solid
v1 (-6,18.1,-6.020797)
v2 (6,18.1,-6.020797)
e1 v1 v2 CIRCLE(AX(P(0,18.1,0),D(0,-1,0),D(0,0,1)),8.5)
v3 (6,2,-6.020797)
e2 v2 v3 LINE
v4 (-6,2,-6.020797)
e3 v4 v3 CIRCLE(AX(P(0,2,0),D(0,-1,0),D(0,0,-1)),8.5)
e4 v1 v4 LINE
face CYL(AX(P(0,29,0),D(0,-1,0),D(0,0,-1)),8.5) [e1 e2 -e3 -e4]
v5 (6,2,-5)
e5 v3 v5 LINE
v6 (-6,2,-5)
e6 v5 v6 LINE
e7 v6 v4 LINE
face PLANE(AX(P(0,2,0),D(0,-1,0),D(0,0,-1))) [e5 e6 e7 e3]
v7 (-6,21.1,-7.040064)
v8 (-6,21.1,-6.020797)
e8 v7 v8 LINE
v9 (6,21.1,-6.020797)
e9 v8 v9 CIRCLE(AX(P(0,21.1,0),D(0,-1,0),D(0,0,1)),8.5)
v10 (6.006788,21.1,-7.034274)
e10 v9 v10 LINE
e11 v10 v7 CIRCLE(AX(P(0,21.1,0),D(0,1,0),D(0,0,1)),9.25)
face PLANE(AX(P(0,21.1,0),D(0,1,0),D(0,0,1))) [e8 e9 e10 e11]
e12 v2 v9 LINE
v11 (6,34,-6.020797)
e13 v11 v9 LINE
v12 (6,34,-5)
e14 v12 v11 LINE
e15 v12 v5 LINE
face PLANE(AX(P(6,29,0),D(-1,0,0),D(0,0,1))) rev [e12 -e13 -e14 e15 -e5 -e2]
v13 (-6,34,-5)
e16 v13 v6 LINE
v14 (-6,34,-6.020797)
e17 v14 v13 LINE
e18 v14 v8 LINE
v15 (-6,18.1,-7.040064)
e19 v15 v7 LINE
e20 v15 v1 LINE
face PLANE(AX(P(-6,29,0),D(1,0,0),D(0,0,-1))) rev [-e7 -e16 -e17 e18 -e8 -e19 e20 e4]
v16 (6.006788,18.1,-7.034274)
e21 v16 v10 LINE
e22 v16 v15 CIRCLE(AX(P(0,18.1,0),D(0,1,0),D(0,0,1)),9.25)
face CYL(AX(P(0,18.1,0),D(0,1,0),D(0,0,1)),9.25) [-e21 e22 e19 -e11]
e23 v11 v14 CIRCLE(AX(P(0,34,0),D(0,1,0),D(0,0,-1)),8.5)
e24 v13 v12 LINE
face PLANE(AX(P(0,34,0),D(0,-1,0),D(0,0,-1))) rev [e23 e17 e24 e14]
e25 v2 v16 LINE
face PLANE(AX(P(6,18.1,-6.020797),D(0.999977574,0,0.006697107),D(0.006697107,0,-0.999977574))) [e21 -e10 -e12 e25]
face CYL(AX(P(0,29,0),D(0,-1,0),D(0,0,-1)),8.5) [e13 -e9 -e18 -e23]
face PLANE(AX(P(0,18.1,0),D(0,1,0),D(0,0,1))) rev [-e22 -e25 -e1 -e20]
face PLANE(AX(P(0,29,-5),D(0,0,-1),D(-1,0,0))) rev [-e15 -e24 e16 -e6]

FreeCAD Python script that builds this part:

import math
import FreeCAD as App
import Part
import Sketcher

V = App.Vector
Q = App.Units.Quantity


def add_polygon(sketch, points):
    """Adds a closed chain of lines whose ends are joined by coincident constraints."""
    first, n = sketch.GeometryCount, len(points)
    for a, b in zip(points, points[1:] + points[:1]):
        sketch.addGeometry(Part.LineSegment(App.Vector(*a, 0), App.Vector(*b, 0)), False)
    for i in range(n):
        sketch.addConstraint(Sketcher.Constraint("Coincident", first + i, 2, first + (i + 1) % n, 1))

doc = App.newDocument("Part")
body = doc.addObject("PartDesign::Body", "Body")

sketch1 = doc.addObject("Sketcher::SketchObject", "Sketch")
body.addObject(sketch1)
sketch1.AttachmentSupport = (doc.XZ_Plane, [""])
sketch1.MapMode = "FlatFace"
sketch1.addGeometry(Part.LineSegment(V(-6, -6.02, 0), V(-6, -5, 0)), False)
sketch1.addGeometry(Part.LineSegment(V(-6, -5, 0), V(-5.92, -5, 0)), False)
sketch1.addGeometry(Part.ArcOfCircle(Part.Circle(V(0, 0, 0), V(0, 0, 1), 7.75), math.radians(-140), math.radians(-40)), False)
sketch1.addGeometry(Part.LineSegment(V(5.92, -5, 0), V(6, -5, 0)), False)
sketch1.addGeometry(Part.LineSegment(V(6, -5, 0), V(6, -6.02, 0)), False)
sketch1.addGeometry(Part.ArcOfCircle(Part.Circle(V(0, 0, 0), V(0, 0, 1), 8.5), math.radians(-135), math.radians(-45)), False)
sketch1.addConstraint(Sketcher.Constraint("Coincident", 0, 2, 1, 1))
sketch1.addConstraint(Sketcher.Constraint("Coincident", 1, 2, 2, 1))
sketch1.addConstraint(Sketcher.Constraint("Coincident", 2, 2, 3, 1))
sketch1.addConstraint(Sketcher.Constraint("Coincident", 3, 2, 4, 1))
sketch1.addConstraint(Sketcher.Constraint("Coincident", 4, 2, 5, 2))
sketch1.addConstraint(Sketcher.Constraint("Coincident", 5, 1, 0, 1))
sketch1.addConstraint(Sketcher.Constraint("Vertical", 0))
sketch1.addConstraint(Sketcher.Constraint("Horizontal", 1))
sketch1.addConstraint(Sketcher.Constraint("Horizontal", 3))
sketch1.addConstraint(Sketcher.Constraint("Vertical", 4))
sketch1.addConstraint(Sketcher.Constraint("Coincident", 2, 3, -1, 1))
sketch1.addConstraint(Sketcher.Constraint("Coincident", 5, 3, -1, 1))
sketch1.addConstraint(Sketcher.Constraint("Symmetric", 0, 2, 3, 2, -2))
sketch1.addConstraint(Sketcher.Constraint("Radius", 5, Q("8.5 mm")))
sketch1.addConstraint(Sketcher.Constraint("Radius", 2, Q("7.75 mm")))
sketch1.addConstraint(Sketcher.Constraint("DistanceX", 0, 2, -1, 1, Q("6 mm")))
sketch1.addConstraint(Sketcher.Constraint("DistanceY", 0, 2, -1, 1, Q("5 mm")))
pad1 = doc.addObject("PartDesign::Pad", "Pad")
body.addObject(pad1)
pad1.Profile = sketch1
pad1.Length = 29
pad1.Reversed = True

sketch2 = doc.addObject("Sketcher::SketchObject", "Sketch001")
body.addObject(sketch2)
sketch2.AttachmentSupport = (doc.XZ_Plane, [""])
sketch2.MapMode = "FlatFace"
sketch2.AttachmentOffset = App.Placement(V(0, 0, -18.1), App.Rotation())
sketch2.addGeometry(Part.LineSegment(V(6, -6, 0), V(6, -7, 0)), False)
sketch2.addGeometry(Part.ArcOfCircle(Part.Circle(V(0, 0, 0), V(0, 0, 1), 9.3), math.radians(-130), math.radians(-50)), False)
sketch2.addGeometry(Part.LineSegment(V(-6, -7, 0), V(-6, -6, 0)), False)
sketch2.addGeometry(Part.ArcOfCircle(Part.Circle(V(0, 0, 0), V(0, 0, 1), 8.5), math.radians(-135), math.radians(-45)), False)
sketch2.addConstraint(Sketcher.Constraint("Coincident", 0, 2, 1, 2))
sketch2.addConstraint(Sketcher.Constraint("Coincident", 1, 1, 2, 1))
sketch2.addConstraint(Sketcher.Constraint("Coincident", 2, 2, 3, 1))
sketch2.addConstraint(Sketcher.Constraint("Coincident", 3, 2, 0, 1))
sketch2.addConstraint(Sketcher.Constraint("Vertical", 2))
sketch2.addConstraint(Sketcher.Constraint("Coincident", 1, 3, -1, 1))
sketch2.addConstraint(Sketcher.Constraint("Coincident", 3, 3, -1, 1))
sketch2.addConstraint(Sketcher.Constraint("Horizontal", 2, 2, 3, 2))
sketch2.addConstraint(Sketcher.Constraint("Radius", 3, Q("8.5 mm")))
sketch2.addConstraint(Sketcher.Constraint("Radius", 1, Q("9.25 mm")))
sketch2.addConstraint(Sketcher.Constraint("DistanceX", 1, 1, -1, 1, Q("6 mm")))
sketch2.addConstraint(Sketcher.Constraint("Distance", 0, Q("1.013499 mm")))
pad2 = doc.addObject("PartDesign::Pad", "Pad001")
body.addObject(pad2)
pad2.Profile = sketch2
pad2.Length = 3
pad2.Reversed = True

sketch3 = doc.addObject("Sketcher::SketchObject", "Sketch002")
body.addObject(sketch3)
sketch3.AttachmentSupport = (doc.XZ_Plane, [""])
sketch3.MapMode = "FlatFace"
sketch3.addGeometry(Part.LineSegment(V(6, -5, 0), V(-6, -5, 0)), False)
sketch3.addGeometry(Part.ArcOfCircle(Part.Circle(V(0, 0, 0), V(0, 0, 1), 8), math.radians(-140), math.radians(-40)), False)
sketch3.addConstraint(Sketcher.Constraint("Coincident", 0, 1, 1, 2))
sketch3.addConstraint(Sketcher.Constraint("Coincident", 1, 1, 0, 2))
sketch3.addConstraint(Sketcher.Constraint("Horizontal", 0))
sketch3.addConstraint(Sketcher.Constraint("Coincident", 1, 3, -1, 1))
sketch3.addConstraint(Sketcher.Constraint("Radius", 1, Q("7.75 mm")))
sketch3.addConstraint(Sketcher.Constraint("DistanceY", 0, 1, -1, 1, Q("5 mm")))
pad3 = doc.addObject("PartDesign::Pad", "Pad002")
body.addObject(pad3)
pad3.Profile = sketch3
pad3.Length = 29
pad3.Reversed = True

sketch4 = doc.addObject("Sketcher::SketchObject", "Sketch003")
body.addObject(sketch4)
sketch4.AttachmentSupport = (doc.XZ_Plane, [""])
sketch4.MapMode = "FlatFace"
add_polygon(sketch4, [(-9, -1), (-9, -11), (7, -11), (7, -1)])
sketch4.addConstraint(Sketcher.Constraint("Vertical", 0))
sketch4.addConstraint(Sketcher.Constraint("Horizontal", 1))
sketch4.addConstraint(Sketcher.Constraint("Vertical", 2))
sketch4.addConstraint(Sketcher.Constraint("Horizontal", 3))
sketch4.addConstraint(Sketcher.Constraint("DistanceY", 0, 2, 0, 1, Q("9.872799 mm")))
sketch4.addConstraint(Sketcher.Constraint("DistanceX", -1, 1, 1, 2, Q("7.0339 mm")))
sketch4.addConstraint(Sketcher.Constraint("DistanceX", 1, 1, 1, 2, Q("15.595786 mm")))
sketch4.addConstraint(Sketcher.Constraint("DistanceY", 0, 2, -1, 1, Q("11.181786 mm")))
pocket1 = doc.addObject("PartDesign::Pocket", "Pocket")
body.addObject(pocket1)
pocket1.Profile = sketch4
pocket1.Length = 2

sketch5 = doc.addObject("Sketcher::SketchObject", "Sketch004")
body.addObject(sketch5)
sketch5.AttachmentSupport = (doc.XZ_Plane, [""])
sketch5.MapMode = "FlatFace"
sketch5.AttachmentOffset = App.Placement(V(0, 0, -29), App.Rotation())
sketch5.addGeometry(Part.LineSegment(V(-6, -5, 0), V(6, -5, 0)), False)
sketch5.addGeometry(Part.LineSegment(V(6, -5, 0), V(6, -6, 0)), False)
sketch5.addGeometry(Part.ArcOfCircle(Part.Circle(V(0, 0, 0), V(0, 0, 1), 8.5), math.radians(-135), math.radians(-45)), False)
sketch5.addGeometry(Part.LineSegment(V(-6, -6, 0), V(-6, -5, 0)), False)
sketch5.addConstraint(Sketcher.Constraint("Coincident", 0, 2, 1, 1))
sketch5.addConstraint(Sketcher.Constraint("Coincident", 1, 2, 2, 2))
sketch5.addConstraint(Sketcher.Constraint("Coincident", 2, 1, 3, 1))
sketch5.addConstraint(Sketcher.Constraint("Coincident", 3, 2, 0, 1))
sketch5.addConstraint(Sketcher.Constraint("Horizontal", 0))
sketch5.addConstraint(Sketcher.Constraint("Vertical", 1))
sketch5.addConstraint(Sketcher.Constraint("Vertical", 3))
sketch5.addConstraint(Sketcher.Constraint("Coincident", 2, 3, -1, 1))
sketch5.addConstraint(Sketcher.Constraint("Horizontal", 1, 2, 2, 1))
sketch5.addConstraint(Sketcher.Constraint("Radius", 2, Q("8.5 mm")))
sketch5.addConstraint(Sketcher.Constraint("DistanceX", 0, 1, 0, 2, Q("12 mm")))
sketch5.addConstraint(Sketcher.Constraint("DistanceY", 0, 2, -1, 1, Q("5 mm")))
pad4 = doc.addObject("PartDesign::Pad", "Pad003")
body.addObject(pad4)
pad4.Profile = sketch5
pad4.Length = 5
pad4.Reversed = True

doc.recompute()
